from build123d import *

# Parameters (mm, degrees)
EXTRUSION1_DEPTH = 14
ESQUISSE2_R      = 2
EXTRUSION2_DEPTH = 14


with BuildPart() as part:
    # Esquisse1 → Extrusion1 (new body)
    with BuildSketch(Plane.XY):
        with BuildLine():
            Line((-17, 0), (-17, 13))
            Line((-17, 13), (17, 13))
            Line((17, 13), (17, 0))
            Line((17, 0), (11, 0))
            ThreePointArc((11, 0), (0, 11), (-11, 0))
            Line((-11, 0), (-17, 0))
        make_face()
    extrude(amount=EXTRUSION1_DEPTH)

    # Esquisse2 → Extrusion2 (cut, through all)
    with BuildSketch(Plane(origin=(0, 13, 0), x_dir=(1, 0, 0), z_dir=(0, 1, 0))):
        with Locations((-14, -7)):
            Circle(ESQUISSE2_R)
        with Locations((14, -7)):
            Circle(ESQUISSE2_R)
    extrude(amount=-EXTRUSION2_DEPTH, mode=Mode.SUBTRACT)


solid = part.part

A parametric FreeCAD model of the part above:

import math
import FreeCAD as App
import Part
import Sketcher

V = App.Vector
Q = App.Units.Quantity

doc = App.newDocument("Part")
body = doc.addObject("PartDesign::Body", "Body")

sketch1 = body.newObject("Sketcher::SketchObject", "Sketch")
sketch1.AttachmentSupport = (doc.getObject("XY_Plane"), [""])
sketch1.MapMode = "FlatFace"
sketch1.addGeometry([
    Part.LineSegment(V(-17, 13, 0), V(-17, 0, 0)),
    Part.LineSegment(V(-17, 0, 0), V(-11, 0, 0)),
    Part.ArcOfCircle(Part.Circle(V(0, 0, 0), V(0, 0, 1), 11), math.radians(0), math.radians(180)),
    Part.LineSegment(V(11, 0, 0), V(17, 0, 0)),
    Part.LineSegment(V(17, 0, 0), V(17, 13, 0)),
    Part.LineSegment(V(17, 13, 0), V(-17, 13, 0)),
], False)
sketch1.addConstraint([
    Sketcher.Constraint("Coincident", 0, 2, 1, 1),
    Sketcher.Constraint("Coincident", 1, 2, 2, 2),
    Sketcher.Constraint("Coincident", 2, 1, 3, 1),
    Sketcher.Constraint("Coincident", 3, 2, 4, 1),
    Sketcher.Constraint("Coincident", 4, 2, 5, 1),
    Sketcher.Constraint("Coincident", 5, 2, 0, 1),
    Sketcher.Constraint("Vertical", 0),
    Sketcher.Constraint("Horizontal", 1),
    Sketcher.Constraint("Horizontal", 3),
    Sketcher.Constraint("Vertical", 4),
    Sketcher.Constraint("Horizontal", 5),
    Sketcher.Constraint("Coincident", 2, 3, -1, 1),
    Sketcher.Constraint("Symmetric", 0, 2, 3, 2, -1, 1),
    Sketcher.Constraint("PointOnObject", 0, 2, -1),
    Sketcher.Constraint("Radius", 2, Q("11 mm")),
    Sketcher.Constraint("DistanceX", 1, 1, 1, 2, Q("6 mm")),
    Sketcher.Constraint("DistanceY", 0, 2, 0, 1, Q("13 mm")),
])
pad1 = body.newObject("PartDesign::Pad", "Pad")
pad1.Profile = sketch1
pad1.Length = 14

sketch2 = body.newObject("Sketcher::SketchObject", "Sketch001")
sketch2.AttachmentSupport = (doc.getObject("XZ_Plane"), [""])
sketch2.MapMode = "FlatFace"
sketch2.AttachmentOffset = App.Placement(V(0, 0, -13), App.Rotation())
sketch2.addGeometry([
    Part.Circle(V(-14, 7, 0), V(0, 0, 1), 2),
    Part.Circle(V(14, 7, 0), V(0, 0, 1), 2),
], False)
sketch2.addConstraint([
    Sketcher.Constraint("Equal", 0, 1),
    Sketcher.Constraint("Symmetric", 0, 3, 1, 3, -2),
    Sketcher.Constraint("Diameter", 0, Q("4 mm")),
    Sketcher.Constraint("DistanceX", 0, 3, -1, 1, Q("14 mm")),
    Sketcher.Constraint("DistanceY", -1, 1, 0, 3, Q("7 mm")),
])
pocket1 = body.newObject("PartDesign::Pocket", "Pocket")
pocket1.Profile = sketch2
pocket1.Type = "ThroughAll"
pocket1.Reversed = True

doc.recompute()
